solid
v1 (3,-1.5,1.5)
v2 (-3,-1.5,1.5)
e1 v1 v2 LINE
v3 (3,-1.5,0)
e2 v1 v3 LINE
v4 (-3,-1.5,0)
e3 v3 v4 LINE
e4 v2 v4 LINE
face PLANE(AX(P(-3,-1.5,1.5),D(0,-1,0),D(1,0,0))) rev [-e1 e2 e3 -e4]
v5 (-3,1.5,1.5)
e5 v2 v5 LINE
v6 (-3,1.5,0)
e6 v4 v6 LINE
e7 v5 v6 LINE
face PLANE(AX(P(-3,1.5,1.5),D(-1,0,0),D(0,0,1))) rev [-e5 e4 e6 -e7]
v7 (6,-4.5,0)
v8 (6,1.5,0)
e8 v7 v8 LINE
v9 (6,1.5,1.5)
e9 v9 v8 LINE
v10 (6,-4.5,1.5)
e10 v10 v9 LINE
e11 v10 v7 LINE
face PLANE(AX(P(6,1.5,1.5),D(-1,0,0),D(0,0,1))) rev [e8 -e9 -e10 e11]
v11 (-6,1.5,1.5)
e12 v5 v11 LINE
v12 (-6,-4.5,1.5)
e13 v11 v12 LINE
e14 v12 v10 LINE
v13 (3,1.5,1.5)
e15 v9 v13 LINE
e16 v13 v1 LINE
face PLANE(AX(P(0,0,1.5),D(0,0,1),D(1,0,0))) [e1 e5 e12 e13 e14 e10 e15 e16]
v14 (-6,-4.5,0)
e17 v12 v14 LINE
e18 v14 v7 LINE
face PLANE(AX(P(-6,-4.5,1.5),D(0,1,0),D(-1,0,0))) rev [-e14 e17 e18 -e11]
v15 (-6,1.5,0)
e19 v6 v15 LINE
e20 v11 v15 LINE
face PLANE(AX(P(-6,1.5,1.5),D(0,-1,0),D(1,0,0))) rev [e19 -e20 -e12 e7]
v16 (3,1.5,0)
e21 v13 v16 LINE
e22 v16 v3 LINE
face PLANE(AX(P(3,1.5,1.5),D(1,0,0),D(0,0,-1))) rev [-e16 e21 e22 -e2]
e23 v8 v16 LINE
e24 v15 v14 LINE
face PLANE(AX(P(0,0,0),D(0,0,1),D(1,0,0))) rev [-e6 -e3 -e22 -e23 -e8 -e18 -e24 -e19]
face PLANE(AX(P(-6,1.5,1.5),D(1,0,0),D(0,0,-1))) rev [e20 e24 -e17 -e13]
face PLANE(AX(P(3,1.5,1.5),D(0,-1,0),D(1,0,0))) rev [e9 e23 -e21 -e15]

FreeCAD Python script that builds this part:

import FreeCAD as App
import Part
import Sketcher

V = App.Vector


def add_polygon(sketch, points):
    """Adds a closed chain of lines whose ends are joined by coincident constraints."""
    first, n = sketch.GeometryCount, len(points)
    for a, b in zip(points, points[1:] + points[:1]):
        sketch.addGeometry(Part.LineSegment(App.Vector(*a, 0), App.Vector(*b, 0)), False)
    for i in range(n):
        sketch.addConstraint(Sketcher.Constraint("Coincident", first + i, 2, first + (i + 1) % n, 1))

doc = App.newDocument("Part")
body = doc.addObject("PartDesign::Body", "Body")

sketch1 = body.newObject("Sketcher::SketchObject", "Sketch")
sketch1.AttachmentSupport = (doc.getObject("XY_Plane"), [""])
sketch1.MapMode = "FlatFace"
add_polygon(sketch1, [(-3, -1.5), (-3, 1.5), (-6, 1.5), (-6, -4.5), (6, -4.5), (6, 1.5), (3, 1.5), (3, -1.5)])
sketch1.addConstraint([
    Sketcher.Constraint("Vertical", 0),
    Sketcher.Constraint("Horizontal", 1),
    Sketcher.Constraint("Vertical", 2),
    Sketcher.Constraint("Horizontal", 3),
    Sketcher.Constraint("Vertical", 4),
    Sketcher.Constraint("Horizontal", 5),
    Sketcher.Constraint("Vertical", 6),
    Sketcher.Constraint("Horizontal", 7),
    Sketcher.Constraint("Symmetric", 0, 2, 6, 2, -1, 1),
    Sketcher.Constraint("Symmetric", 1, 2, 4, 2, -2),
    Sketcher.Constraint("Equal", 5, 0),
    Sketcher.Constraint("Equal", 7, 2),
    Sketcher.Constraint("DistanceX", 1, 2, 1, 1, 3.0),
    Sketcher.Constraint("DistanceX", 3, 1, 3, 2, 12.0),
])
pad1 = body.newObject("PartDesign::Pad", "Pad")
pad1.Profile = sketch1
pad1.Length = 1.5

doc.recompute()
